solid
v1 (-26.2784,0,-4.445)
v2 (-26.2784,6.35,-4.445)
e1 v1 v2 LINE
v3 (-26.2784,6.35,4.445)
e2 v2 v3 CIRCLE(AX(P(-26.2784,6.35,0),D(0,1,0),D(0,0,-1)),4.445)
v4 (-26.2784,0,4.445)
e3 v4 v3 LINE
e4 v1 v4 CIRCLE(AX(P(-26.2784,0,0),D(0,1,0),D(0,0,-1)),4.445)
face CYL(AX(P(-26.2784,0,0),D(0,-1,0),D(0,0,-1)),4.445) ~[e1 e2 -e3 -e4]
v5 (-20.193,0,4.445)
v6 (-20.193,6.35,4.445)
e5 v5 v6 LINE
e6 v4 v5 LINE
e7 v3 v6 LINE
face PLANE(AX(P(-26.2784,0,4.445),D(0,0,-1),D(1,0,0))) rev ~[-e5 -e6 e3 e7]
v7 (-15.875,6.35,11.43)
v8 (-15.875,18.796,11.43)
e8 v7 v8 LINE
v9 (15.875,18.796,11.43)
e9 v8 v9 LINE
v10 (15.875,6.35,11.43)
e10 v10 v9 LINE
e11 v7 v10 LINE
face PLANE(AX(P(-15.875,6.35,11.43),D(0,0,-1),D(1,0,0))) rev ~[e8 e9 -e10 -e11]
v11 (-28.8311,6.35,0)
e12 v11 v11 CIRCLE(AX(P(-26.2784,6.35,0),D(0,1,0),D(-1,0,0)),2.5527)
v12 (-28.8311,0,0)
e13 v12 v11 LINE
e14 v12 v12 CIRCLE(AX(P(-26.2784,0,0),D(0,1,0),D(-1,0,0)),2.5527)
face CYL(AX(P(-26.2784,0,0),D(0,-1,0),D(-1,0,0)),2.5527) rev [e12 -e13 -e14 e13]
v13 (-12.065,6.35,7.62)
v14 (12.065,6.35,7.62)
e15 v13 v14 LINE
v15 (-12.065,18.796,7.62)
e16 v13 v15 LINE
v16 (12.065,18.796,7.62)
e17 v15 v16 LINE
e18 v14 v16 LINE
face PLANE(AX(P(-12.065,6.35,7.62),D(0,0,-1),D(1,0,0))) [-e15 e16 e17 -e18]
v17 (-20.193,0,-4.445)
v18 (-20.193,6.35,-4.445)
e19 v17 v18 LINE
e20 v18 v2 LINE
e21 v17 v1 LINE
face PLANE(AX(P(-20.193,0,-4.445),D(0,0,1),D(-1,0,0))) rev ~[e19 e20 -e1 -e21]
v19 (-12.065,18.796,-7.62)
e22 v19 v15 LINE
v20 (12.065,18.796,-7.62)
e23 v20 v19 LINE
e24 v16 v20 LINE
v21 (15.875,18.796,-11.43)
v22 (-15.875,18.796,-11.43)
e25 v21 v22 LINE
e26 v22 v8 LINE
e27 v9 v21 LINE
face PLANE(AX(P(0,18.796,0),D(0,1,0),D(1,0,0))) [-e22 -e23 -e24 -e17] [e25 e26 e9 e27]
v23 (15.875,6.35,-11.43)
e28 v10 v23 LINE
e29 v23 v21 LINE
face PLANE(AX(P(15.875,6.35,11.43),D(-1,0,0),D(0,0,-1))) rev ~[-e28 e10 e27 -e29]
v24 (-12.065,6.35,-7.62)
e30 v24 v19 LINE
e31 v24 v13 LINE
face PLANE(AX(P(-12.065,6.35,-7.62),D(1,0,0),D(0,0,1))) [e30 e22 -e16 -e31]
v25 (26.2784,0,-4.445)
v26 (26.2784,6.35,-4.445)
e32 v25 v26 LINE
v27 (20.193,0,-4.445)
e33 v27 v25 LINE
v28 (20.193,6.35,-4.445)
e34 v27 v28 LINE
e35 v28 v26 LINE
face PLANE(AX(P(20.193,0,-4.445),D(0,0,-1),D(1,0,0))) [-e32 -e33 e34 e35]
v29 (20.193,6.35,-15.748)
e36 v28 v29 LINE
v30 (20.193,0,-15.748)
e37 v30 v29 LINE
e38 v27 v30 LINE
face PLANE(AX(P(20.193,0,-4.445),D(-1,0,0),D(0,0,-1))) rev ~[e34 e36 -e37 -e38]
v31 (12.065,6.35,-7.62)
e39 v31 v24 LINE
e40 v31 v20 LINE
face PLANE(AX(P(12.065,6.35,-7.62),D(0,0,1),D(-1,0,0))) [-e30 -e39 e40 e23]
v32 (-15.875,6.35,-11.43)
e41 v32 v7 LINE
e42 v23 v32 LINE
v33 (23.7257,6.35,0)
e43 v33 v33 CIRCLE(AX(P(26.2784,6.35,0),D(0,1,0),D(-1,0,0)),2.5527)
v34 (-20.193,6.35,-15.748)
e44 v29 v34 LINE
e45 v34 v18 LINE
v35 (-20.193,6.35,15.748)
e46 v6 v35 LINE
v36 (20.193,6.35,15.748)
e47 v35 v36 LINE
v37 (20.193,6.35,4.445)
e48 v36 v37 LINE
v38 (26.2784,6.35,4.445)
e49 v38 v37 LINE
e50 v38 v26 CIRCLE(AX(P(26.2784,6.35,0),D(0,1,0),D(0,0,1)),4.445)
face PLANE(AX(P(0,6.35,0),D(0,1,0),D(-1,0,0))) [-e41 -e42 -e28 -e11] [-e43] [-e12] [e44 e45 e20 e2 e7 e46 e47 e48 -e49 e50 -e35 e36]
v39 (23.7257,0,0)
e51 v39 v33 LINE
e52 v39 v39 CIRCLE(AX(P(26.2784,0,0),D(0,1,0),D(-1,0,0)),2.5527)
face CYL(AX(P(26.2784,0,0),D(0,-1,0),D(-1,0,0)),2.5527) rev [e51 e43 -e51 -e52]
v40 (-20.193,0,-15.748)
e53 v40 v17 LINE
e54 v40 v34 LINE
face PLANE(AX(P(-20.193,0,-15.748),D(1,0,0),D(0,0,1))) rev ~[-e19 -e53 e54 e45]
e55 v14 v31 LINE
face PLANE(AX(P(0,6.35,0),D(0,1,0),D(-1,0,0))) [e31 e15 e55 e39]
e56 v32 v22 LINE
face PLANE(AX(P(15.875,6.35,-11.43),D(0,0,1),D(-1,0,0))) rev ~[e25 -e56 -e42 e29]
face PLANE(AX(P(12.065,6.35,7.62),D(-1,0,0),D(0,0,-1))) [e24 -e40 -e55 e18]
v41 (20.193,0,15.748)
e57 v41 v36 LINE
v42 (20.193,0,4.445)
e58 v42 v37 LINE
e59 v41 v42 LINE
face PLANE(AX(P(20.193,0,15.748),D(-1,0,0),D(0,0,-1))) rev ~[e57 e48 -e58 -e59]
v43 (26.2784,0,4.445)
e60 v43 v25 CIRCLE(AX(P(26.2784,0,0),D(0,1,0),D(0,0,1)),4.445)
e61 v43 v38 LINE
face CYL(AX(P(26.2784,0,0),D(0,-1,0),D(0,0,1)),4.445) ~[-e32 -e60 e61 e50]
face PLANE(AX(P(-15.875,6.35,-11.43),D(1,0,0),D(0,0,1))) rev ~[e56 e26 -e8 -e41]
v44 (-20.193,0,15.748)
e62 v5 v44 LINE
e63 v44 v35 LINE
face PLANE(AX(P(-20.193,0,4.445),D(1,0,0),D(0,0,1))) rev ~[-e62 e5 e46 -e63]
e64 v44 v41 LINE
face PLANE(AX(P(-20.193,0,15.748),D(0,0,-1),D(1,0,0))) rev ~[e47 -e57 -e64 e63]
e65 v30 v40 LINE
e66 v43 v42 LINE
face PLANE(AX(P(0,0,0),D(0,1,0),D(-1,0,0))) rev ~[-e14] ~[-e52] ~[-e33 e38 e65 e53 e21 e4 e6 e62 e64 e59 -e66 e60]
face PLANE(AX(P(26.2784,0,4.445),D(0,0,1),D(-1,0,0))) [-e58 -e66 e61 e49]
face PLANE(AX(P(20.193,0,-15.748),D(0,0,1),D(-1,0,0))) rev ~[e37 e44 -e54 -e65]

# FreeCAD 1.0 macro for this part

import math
import FreeCAD as App
import Part
import Sketcher

V = App.Vector
Q = App.Units.Quantity

doc = App.newDocument("Part")
body = doc.addObject("PartDesign::Body", "Body")

sketch1 = body.newObject("Sketcher::SketchObject", "Sketch")
sketch1.AttachmentSupport = (doc.getObject("XZ_Plane"), [""])
sketch1.MapMode = "FlatFace"
sketch1.addGeometry([
    Part.LineSegment(V(-20.2, 4.4, 0), V(-20.2, 15.7, 0)),
    Part.LineSegment(V(-20.2, 15.7, 0), V(20.2, 15.7, 0)),
    Part.LineSegment(V(20.2, 15.7, 0), V(20.2, 4.4, 0)),
    Part.LineSegment(V(20.2, 4.4, 0), V(26.3, 4.4, 0)),
    Part.ArcOfCircle(Part.Circle(V(26.3, 0, 0), V(0, 0, 1), 4.4), math.radians(-90), math.radians(90)),
    Part.LineSegment(V(26.3, -4.4, 0), V(20.2, -4.4, 0)),
    Part.LineSegment(V(20.2, -4.4, 0), V(20.2, -15.7, 0)),
    Part.LineSegment(V(20.2, -15.7, 0), V(-20.2, -15.7, 0)),
    Part.LineSegment(V(-20.2, -15.7, 0), V(-20.2, -4.4, 0)),
    Part.LineSegment(V(-20.2, -4.4, 0), V(-26.3, -4.4, 0)),
    Part.ArcOfCircle(Part.Circle(V(-26.3, 0, 0), V(0, 0, 1), 4.4), math.radians(90), math.radians(270)),
    Part.LineSegment(V(-26.3, 4.4, 0), V(-20.2, 4.4, 0)),
    Part.Circle(V(26.3, 0, 0), V(0, 0, 1), 2.6),
    Part.Circle(V(-26.3, 0, 0), V(0, 0, 1), 2.6),
], False)
sketch1.addConstraint([
    Sketcher.Constraint("Coincident", 0, 2, 1, 1),
    Sketcher.Constraint("Coincident", 1, 2, 2, 1),
    Sketcher.Constraint("Coincident", 2, 2, 3, 1),
    Sketcher.Constraint("Tangent", 3, 2, 4, 2),
    Sketcher.Constraint("Tangent", 4, 1, 5, 1),
    Sketcher.Constraint("Coincident", 5, 2, 6, 1),
    Sketcher.Constraint("Coincident", 6, 2, 7, 1),
    Sketcher.Constraint("Coincident", 7, 2, 8, 1),
    Sketcher.Constraint("Coincident", 8, 2, 9, 1),
    Sketcher.Constraint("Tangent", 9, 2, 10, 2),
    Sketcher.Constraint("Tangent", 10, 1, 11, 1),
    Sketcher.Constraint("Coincident", 11, 2, 0, 1),
    Sketcher.Constraint("Vertical", 0),
    Sketcher.Constraint("Horizontal", 1),
    Sketcher.Constraint("Vertical", 2),
    Sketcher.Constraint("Horizontal", 3),
    Sketcher.Constraint("Horizontal", 5),
    Sketcher.Constraint("Vertical", 6),
    Sketcher.Constraint("Horizontal", 7),
    Sketcher.Constraint("Vertical", 8),
    Sketcher.Constraint("Horizontal", 9),
    Sketcher.Constraint("Horizontal", 11),
    Sketcher.Constraint("Coincident", 12, 3, 4, 3),
    Sketcher.Constraint("Coincident", 13, 3, 10, 3),
    Sketcher.Constraint("Equal", 4, 10),
    Sketcher.Constraint("Equal", 12, 13),
    Sketcher.Constraint("Symmetric", 4, 3, 10, 3, -1, 1),
    Sketcher.Constraint("Symmetric", 0, 2, 6, 2, -1, 1),
    Sketcher.Constraint("Symmetric", 5, 2, 8, 2, -2),
    Sketcher.Constraint("Vertical", 2, 2, 5, 2),
    Sketcher.Constraint("Diameter", 12, Q("0.201 in")),
    Sketcher.Constraint("Radius", 4, Q("0.175 in")),
    Sketcher.Constraint("DistanceX", 1, 1, 1, 2, Q("1.59 in")),
    Sketcher.Constraint("DistanceY", 7, 2, 0, 2, Q("1.24 in")),
    Sketcher.Constraint("DistanceX", 3, 1, 3, 2, 6.0854),
])
pad1 = body.newObject("PartDesign::Pad", "Pad")
pad1.Profile = sketch1
pad1.Length = Q("0.25 in")
pad1.Reversed = True

sketch2 = body.newObject("Sketcher::SketchObject", "Sketch001")
sketch2.AttachmentSupport = (doc.getObject("XZ_Plane"), [""])
sketch2.MapMode = "FlatFace"
sketch2.AttachmentOffset = App.Placement(V(0, 0, -0.25 * 25.4), App.Rotation())
sketch2.addGeometry([
    Part.LineSegment(V(-16, -11, 0), V(-16, 11, 0)),
    Part.LineSegment(V(-16, 11, 0), V(16, 11, 0)),
    Part.LineSegment(V(16, 11, 0), V(16, -11, 0)),
    Part.LineSegment(V(16, -11, 0), V(-16, -11, 0)),
    Part.LineSegment(V(12, 8, 0), V(-12, 8, 0)),
    Part.LineSegment(V(-12, 8, 0), V(-12, -8, 0)),
    Part.LineSegment(V(-12, -8, 0), V(12, -8, 0)),
    Part.LineSegment(V(12, -8, 0), V(12, 8, 0)),
], False)
sketch2.addConstraint([
    Sketcher.Constraint("Coincident", 0, 2, 1, 1),
    Sketcher.Constraint("Coincident", 1, 2, 2, 1),
    Sketcher.Constraint("Coincident", 2, 2, 3, 1),
    Sketcher.Constraint("Coincident", 3, 2, 0, 1),
    Sketcher.Constraint("Coincident", 4, 2, 5, 1),
    Sketcher.Constraint("Coincident", 5, 2, 6, 1),
    Sketcher.Constraint("Coincident", 6, 2, 7, 1),
    Sketcher.Constraint("Coincident", 7, 2, 4, 1),
    Sketcher.Constraint("Vertical", 0),
    Sketcher.Constraint("Horizontal", 1),
    Sketcher.Constraint("Vertical", 2),
    Sketcher.Constraint("Horizontal", 3),
    Sketcher.Constraint("Horizontal", 4),
    Sketcher.Constraint("Vertical", 5),
    Sketcher.Constraint("Horizontal", 6),
    Sketcher.Constraint("Vertical", 7),
    Sketcher.Constraint("Symmetric", 0, 2, 2, 2, -1, 1),
    Sketcher.Constraint("Symmetric", 4, 2, 6, 2, -1, 1),
    Sketcher.Constraint("DistanceY", 0, 1, 0, 2, Q("0.9 in")),
    Sketcher.Constraint("DistanceX", 1, 1, 1, 2, Q("1.25 in")),
    Sketcher.Constraint("DistanceX", 0, 2, 4, 2, Q("0.15 in")),
    Sketcher.Constraint("DistanceY", 4, 2, 0, 2, Q("0.15 in")),
])
pad2 = body.newObject("PartDesign::Pad", "Pad001")
pad2.Profile = sketch2
pad2.Length = Q("0.49 in")
pad2.Reversed = True

doc.recompute()
